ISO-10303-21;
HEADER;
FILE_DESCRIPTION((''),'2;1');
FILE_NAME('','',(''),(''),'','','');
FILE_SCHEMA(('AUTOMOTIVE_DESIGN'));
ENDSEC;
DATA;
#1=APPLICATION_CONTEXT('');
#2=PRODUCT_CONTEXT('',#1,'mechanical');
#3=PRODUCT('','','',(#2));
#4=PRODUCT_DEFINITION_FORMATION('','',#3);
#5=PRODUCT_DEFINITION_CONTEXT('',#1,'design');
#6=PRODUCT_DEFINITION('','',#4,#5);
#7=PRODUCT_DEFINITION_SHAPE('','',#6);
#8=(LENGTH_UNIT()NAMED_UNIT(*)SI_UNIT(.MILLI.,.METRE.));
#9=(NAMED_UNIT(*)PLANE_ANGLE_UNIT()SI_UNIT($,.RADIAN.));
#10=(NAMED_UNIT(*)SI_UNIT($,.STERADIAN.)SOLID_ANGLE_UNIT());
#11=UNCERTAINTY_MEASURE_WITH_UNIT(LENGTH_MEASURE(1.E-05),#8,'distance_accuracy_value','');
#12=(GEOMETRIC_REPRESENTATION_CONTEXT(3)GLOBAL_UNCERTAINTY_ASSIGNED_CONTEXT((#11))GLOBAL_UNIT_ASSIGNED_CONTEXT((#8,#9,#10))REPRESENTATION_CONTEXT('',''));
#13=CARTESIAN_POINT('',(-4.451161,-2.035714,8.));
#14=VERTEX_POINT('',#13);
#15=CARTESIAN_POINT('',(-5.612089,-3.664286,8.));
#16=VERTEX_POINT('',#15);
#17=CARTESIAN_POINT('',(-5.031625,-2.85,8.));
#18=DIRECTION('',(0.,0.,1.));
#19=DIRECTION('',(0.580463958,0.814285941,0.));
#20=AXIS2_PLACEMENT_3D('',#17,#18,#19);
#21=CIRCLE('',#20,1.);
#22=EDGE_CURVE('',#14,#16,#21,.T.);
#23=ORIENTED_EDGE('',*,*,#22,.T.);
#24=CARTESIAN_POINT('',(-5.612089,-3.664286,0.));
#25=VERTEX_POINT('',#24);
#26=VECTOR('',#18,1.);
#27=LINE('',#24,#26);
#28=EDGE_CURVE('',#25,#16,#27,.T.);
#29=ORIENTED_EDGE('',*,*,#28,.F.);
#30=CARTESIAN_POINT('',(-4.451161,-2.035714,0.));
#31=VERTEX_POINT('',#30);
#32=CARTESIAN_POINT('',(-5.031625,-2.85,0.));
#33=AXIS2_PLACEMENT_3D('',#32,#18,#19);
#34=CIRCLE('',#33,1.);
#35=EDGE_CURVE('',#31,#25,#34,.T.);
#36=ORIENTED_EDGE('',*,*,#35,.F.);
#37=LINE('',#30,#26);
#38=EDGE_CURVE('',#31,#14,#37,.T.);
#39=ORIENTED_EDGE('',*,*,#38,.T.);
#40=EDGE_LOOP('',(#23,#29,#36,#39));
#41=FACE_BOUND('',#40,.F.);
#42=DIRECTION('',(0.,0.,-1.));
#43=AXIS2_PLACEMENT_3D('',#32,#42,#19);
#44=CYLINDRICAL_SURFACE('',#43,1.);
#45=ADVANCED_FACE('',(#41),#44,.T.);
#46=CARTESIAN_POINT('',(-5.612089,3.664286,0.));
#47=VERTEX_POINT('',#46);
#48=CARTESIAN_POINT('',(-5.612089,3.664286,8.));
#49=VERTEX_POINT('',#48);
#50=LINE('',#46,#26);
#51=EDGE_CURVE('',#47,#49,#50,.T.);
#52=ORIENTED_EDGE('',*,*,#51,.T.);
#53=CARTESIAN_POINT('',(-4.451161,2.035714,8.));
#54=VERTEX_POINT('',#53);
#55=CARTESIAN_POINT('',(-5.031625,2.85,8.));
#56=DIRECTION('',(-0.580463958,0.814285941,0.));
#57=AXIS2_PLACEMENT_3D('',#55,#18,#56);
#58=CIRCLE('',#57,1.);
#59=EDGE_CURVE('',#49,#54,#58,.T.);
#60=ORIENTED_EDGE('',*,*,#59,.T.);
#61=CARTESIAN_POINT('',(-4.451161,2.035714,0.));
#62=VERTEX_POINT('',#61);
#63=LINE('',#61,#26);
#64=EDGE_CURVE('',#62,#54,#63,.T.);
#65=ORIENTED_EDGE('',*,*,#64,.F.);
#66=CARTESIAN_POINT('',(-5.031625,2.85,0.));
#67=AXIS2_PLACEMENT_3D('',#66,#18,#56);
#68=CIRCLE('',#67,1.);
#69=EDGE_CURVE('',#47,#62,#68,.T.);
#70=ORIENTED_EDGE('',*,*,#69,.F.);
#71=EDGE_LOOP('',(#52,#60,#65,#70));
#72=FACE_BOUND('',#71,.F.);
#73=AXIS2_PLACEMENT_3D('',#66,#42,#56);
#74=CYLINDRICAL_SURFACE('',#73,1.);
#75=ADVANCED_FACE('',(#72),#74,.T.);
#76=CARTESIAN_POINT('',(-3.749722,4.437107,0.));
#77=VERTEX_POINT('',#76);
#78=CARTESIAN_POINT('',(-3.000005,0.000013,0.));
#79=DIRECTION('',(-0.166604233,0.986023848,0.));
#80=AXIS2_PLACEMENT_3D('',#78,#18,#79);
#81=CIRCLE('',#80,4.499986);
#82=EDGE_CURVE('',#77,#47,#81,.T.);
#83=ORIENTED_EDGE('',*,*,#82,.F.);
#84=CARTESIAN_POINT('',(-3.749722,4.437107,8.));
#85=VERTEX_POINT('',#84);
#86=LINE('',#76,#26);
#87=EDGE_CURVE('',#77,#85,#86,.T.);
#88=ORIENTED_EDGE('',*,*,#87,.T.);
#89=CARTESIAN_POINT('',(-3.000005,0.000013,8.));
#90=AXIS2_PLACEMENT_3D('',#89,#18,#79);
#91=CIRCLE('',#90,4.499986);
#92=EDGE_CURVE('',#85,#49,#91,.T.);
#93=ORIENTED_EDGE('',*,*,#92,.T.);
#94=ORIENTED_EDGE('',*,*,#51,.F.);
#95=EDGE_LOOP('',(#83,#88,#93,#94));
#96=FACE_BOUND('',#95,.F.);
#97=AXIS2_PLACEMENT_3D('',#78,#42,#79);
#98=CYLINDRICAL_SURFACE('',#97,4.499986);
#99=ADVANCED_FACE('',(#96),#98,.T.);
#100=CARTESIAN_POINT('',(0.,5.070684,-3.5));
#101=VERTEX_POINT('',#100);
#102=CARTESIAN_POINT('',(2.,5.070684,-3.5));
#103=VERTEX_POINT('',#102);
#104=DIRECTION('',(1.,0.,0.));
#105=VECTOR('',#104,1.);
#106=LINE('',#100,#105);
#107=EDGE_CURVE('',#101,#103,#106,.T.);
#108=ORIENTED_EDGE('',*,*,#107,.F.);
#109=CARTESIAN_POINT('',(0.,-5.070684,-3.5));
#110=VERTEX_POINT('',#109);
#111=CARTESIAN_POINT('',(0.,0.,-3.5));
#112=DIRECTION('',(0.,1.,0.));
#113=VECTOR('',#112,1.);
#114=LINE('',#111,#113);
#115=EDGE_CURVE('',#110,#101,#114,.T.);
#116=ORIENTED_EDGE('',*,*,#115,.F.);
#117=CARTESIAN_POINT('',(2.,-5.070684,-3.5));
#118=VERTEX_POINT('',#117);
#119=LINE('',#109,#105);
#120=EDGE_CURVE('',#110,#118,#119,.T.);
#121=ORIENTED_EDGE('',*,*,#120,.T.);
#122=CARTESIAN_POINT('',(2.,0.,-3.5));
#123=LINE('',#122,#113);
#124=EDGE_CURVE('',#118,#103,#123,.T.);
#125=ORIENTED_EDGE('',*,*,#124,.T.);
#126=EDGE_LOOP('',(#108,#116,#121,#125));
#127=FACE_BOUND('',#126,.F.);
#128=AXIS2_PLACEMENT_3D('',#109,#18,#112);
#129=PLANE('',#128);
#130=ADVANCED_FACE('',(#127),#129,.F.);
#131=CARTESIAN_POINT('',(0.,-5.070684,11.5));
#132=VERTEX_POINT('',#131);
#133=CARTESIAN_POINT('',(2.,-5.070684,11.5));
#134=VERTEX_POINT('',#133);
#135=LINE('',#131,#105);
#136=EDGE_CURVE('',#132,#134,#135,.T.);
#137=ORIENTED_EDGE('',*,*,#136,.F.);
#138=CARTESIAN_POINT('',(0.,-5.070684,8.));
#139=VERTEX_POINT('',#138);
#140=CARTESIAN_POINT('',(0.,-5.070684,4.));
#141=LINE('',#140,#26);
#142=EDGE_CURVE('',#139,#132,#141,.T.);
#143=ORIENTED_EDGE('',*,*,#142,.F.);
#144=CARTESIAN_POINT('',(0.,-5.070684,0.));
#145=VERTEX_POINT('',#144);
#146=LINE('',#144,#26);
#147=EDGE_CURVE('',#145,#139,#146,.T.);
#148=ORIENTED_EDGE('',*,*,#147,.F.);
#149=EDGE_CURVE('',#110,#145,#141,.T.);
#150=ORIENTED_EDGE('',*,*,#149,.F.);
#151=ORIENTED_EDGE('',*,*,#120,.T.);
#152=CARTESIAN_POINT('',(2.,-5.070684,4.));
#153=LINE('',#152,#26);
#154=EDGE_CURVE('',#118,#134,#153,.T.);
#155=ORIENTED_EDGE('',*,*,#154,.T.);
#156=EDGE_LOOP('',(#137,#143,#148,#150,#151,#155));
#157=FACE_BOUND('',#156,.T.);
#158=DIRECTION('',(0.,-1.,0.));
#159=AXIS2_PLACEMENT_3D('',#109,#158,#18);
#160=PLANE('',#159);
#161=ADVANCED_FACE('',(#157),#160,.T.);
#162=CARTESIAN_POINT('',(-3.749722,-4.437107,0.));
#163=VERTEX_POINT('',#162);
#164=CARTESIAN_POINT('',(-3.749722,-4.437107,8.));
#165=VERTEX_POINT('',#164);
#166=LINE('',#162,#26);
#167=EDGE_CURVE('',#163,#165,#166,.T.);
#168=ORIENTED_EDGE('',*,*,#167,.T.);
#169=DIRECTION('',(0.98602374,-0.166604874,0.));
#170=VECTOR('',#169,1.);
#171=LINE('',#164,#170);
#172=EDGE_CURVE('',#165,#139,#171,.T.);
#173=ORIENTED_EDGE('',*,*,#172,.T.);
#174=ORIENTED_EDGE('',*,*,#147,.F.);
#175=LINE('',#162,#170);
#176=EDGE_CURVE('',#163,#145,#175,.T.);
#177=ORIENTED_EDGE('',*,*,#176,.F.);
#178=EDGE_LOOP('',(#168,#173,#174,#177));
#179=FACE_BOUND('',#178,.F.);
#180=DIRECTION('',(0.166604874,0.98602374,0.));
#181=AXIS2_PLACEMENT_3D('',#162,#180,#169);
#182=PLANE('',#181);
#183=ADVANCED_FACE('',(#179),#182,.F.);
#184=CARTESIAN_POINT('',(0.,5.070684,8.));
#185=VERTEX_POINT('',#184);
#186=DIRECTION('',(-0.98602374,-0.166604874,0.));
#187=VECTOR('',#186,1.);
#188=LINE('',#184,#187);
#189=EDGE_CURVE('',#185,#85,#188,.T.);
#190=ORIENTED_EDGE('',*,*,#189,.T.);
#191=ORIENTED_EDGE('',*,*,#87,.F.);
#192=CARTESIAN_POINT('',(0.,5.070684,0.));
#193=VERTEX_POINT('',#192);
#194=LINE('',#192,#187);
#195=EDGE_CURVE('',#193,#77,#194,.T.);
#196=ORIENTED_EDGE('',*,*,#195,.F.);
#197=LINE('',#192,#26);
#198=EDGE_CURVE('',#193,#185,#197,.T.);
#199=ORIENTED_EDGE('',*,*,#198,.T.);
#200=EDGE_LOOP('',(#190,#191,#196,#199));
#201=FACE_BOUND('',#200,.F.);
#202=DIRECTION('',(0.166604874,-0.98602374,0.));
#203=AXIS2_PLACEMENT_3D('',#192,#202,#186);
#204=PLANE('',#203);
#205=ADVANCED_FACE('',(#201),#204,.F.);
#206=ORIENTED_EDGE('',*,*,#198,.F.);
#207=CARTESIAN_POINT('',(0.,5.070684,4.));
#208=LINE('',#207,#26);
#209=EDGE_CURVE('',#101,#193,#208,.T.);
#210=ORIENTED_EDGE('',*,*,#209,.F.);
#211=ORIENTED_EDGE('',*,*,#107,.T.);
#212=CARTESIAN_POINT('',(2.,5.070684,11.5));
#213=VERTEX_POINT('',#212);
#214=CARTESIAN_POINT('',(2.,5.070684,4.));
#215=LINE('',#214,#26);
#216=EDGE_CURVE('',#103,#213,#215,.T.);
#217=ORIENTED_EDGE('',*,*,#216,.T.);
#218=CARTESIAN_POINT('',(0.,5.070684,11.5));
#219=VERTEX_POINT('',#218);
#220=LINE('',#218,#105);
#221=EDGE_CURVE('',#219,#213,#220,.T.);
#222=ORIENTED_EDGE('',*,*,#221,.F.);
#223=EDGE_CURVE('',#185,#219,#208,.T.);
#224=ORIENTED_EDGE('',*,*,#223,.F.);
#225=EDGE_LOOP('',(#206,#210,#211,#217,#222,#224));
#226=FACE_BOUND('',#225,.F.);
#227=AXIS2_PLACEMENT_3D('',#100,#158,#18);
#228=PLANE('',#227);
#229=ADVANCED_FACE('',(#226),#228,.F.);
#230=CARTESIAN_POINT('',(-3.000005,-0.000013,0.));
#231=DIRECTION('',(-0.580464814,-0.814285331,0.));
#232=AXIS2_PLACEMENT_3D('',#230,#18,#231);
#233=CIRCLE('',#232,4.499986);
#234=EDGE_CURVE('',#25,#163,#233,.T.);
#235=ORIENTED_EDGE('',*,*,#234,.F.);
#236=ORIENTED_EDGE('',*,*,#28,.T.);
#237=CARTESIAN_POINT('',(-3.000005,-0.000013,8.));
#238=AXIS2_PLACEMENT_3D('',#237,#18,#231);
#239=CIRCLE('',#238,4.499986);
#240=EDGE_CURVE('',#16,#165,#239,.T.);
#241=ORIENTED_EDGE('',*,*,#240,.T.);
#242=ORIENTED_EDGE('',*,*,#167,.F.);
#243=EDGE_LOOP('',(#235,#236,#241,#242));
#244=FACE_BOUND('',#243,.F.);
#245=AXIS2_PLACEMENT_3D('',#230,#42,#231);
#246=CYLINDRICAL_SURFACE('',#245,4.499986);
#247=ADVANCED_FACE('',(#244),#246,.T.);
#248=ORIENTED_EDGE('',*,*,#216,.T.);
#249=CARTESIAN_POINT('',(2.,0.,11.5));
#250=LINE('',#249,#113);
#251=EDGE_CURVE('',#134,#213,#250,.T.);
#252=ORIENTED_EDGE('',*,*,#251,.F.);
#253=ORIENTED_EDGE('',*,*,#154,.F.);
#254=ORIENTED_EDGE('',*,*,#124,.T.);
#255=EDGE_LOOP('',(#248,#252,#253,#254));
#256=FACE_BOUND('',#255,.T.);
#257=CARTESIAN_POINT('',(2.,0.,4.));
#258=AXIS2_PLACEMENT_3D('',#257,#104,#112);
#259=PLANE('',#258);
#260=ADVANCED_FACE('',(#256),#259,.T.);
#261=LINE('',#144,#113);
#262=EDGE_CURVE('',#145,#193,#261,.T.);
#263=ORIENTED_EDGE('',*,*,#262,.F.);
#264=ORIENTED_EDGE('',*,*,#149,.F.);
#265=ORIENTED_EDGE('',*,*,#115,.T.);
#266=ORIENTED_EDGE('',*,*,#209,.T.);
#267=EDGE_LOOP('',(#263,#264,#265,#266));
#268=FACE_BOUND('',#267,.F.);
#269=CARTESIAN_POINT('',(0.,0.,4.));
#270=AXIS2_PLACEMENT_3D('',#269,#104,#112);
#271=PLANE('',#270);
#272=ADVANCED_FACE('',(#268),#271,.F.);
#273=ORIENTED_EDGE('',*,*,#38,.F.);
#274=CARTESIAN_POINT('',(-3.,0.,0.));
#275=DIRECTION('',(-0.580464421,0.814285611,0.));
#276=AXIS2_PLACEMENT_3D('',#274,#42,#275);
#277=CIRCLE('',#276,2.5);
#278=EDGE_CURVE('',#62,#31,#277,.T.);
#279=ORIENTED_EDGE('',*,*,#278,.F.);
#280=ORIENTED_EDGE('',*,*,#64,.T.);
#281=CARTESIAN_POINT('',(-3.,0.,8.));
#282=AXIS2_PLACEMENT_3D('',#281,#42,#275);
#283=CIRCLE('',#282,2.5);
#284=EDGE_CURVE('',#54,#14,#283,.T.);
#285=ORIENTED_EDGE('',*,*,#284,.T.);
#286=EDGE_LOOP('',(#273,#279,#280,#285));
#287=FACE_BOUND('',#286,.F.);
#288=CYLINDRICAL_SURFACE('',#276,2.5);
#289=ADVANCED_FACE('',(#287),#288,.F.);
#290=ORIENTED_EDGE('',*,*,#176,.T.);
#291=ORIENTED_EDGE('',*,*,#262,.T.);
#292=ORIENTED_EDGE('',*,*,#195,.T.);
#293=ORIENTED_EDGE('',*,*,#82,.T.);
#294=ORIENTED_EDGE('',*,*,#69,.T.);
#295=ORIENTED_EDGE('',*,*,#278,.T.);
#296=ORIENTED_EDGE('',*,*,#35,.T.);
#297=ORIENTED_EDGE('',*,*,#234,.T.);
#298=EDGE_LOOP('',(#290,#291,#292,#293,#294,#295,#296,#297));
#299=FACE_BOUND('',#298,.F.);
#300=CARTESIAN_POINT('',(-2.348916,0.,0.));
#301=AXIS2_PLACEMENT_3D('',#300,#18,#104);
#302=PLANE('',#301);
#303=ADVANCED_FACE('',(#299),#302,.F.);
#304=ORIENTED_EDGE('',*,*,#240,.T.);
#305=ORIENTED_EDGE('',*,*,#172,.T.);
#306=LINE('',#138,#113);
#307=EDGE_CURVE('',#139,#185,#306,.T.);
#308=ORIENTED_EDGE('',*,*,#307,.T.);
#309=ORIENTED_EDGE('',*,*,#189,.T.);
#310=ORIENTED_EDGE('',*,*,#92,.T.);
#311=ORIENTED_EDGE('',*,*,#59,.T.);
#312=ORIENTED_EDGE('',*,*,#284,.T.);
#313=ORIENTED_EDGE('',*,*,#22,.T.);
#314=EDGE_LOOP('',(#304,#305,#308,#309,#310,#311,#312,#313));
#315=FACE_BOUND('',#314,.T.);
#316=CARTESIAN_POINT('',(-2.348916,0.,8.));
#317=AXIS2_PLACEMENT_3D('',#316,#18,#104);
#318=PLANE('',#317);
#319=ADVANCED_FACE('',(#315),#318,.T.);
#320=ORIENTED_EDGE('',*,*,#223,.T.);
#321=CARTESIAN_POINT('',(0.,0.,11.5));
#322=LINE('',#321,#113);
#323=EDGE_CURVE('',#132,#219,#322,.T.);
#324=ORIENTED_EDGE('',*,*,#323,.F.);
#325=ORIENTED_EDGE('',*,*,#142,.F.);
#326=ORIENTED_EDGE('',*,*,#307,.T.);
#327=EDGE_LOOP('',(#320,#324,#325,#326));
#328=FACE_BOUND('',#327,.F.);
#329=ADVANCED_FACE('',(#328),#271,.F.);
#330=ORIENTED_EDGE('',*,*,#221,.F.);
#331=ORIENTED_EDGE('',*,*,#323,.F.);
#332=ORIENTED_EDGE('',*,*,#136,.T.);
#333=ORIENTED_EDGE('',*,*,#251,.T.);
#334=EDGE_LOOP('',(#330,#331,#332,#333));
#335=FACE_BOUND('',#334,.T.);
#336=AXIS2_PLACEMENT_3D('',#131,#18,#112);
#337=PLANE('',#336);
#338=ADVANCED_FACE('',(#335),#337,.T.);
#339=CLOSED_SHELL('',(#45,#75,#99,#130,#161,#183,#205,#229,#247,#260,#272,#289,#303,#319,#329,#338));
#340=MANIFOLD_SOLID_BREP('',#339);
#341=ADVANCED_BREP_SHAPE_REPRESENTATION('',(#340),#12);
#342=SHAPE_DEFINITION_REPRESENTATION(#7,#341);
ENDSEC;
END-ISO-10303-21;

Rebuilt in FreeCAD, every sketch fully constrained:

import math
import FreeCAD as App
import Part
import Sketcher
from FreeCAD import Vector

doc = App.newDocument("Part")
params = doc.addObject("Spreadsheet::Sheet", "Params")
for row, (alias, value) in enumerate([
    ("sketch1_radius", "1 mm"),
    ("sketch1_radius2", "2.5 mm"),
    ("pad1_length", "8 mm"),
    ("sketch2_height", "15 mm"),
    ("pad2_length", "2 mm"),
], start=1):
    params.set(f"A{row}", alias)
    params.set(f"B{row}", "=" + value)
    params.setAlias(f"B{row}", alias)

body = doc.addObject("PartDesign::Body", "Body")

sketch1 = body.newObject("Sketcher::SketchObject", "Sketch")
sketch1.AttachmentSupport = (doc.getObject("XY_Plane"), [""])
sketch1.MapMode = "FlatFace"
sketch1.addGeometry([
    Part.ArcOfCircle(Part.Circle(Vector(-3, 0, 0), Vector(0, 0, 1), 2.5), math.radians(-125.483214), math.radians(125.483214)),
    Part.ArcOfCircle(Part.Circle(Vector(-5.031625, -2.85, 0), Vector(0, 0, 1), 1), math.radians(54.516818), math.radians(234.516818)),
    Part.ArcOfCircle(Part.Circle(Vector(-3.000005, -0.000013, 0), Vector(0, 0, 1), 4.499986), math.radians(-125.483242), math.radians(-99.59044)),
    Part.LineSegment(Vector(-3.749722, -4.437107, 0), Vector(0, -5.070684, 0)),
    Part.LineSegment(Vector(0, -5.070684, 0), Vector(0, 5.070684, 0)),
    Part.LineSegment(Vector(0, 5.070684, 0), Vector(-3.749722, 4.437107, 0)),
    Part.ArcOfCircle(Part.Circle(Vector(-3.000005, 0.000013, 0), Vector(0, 0, 1), 4.499986), math.radians(99.59044), math.radians(125.483242)),
    Part.ArcOfCircle(Part.Circle(Vector(-5.031625, 2.85, 0), Vector(0, 0, 1), 1), math.radians(125.483182), math.radians(305.483182)),
], False)
sketch1.addConstraint([
    Sketcher.Constraint("Tangent", 0, 1, 1, 1),
    Sketcher.Constraint("Tangent", 1, 2, 2, 1),
    Sketcher.Constraint("Tangent", 2, 2, 3, 1),
    Sketcher.Constraint("Coincident", 3, 2, 4, 1),
    Sketcher.Constraint("Coincident", 4, 2, 5, 1),
    Sketcher.Constraint("Tangent", 5, 2, 6, 1),
    Sketcher.Constraint("Tangent", 6, 2, 7, 1),
    Sketcher.Constraint("Tangent", 7, 2, 0, 2),
    Sketcher.Constraint("Vertical", 4),
    Sketcher.Constraint("Equal", 2, 6),
    Sketcher.Constraint("Equal", 1, 7),
    Sketcher.Constraint("Symmetric", 3, 2, 4, 2, -1, 1),
    Sketcher.Constraint("Symmetric", 2, 3, 6, 3, -1),
    Sketcher.Constraint("Vertical", 1, 3, 7, 3),
    Sketcher.Constraint("Radius", 1, 1.0),
    Sketcher.Constraint("Radius", 0, 2.5),
    Sketcher.Constraint("DistanceX", 0, 3, -1, 1, 3.0),
    Sketcher.Constraint("DistanceY", 1, 3, 7, 3, 5.7),
    Sketcher.Constraint("Radius", 2, 4.499986),
    Sketcher.Constraint("DistanceY", 0, 1, 2, 3, 2.035701),
    Sketcher.Constraint("DistanceY", 0, 1, 4, 2, 7.106398),
])
sketch1.setExpression("Constraints[14]", "Params.sketch1_radius")
sketch1.setExpression("Constraints[15]", "Params.sketch1_radius2")
pad1 = body.newObject("PartDesign::Pad", "Pad")
pad1.Profile = sketch1
pad1.setExpression("Length", "Params.pad1_length")

sketch2 = body.newObject("Sketcher::SketchObject", "Sketch001")
sketch2.AttachmentSupport = (doc.getObject("YZ_Plane"), [""])
sketch2.MapMode = "FlatFace"
sketch2.addGeometry([
    Part.LineSegment(Vector(-5.070684, 11.5, 0), Vector(-5.070684, -3.5, 0)),
    Part.LineSegment(Vector(-5.070684, -3.5, 0), Vector(5.070684, -3.5, 0)),
    Part.LineSegment(Vector(5.070684, -3.5, 0), Vector(5.070684, 11.5, 0)),
    Part.LineSegment(Vector(5.070684, 11.5, 0), Vector(-5.070684, 11.5, 0)),
], False)
sketch2.addConstraint([
    Sketcher.Constraint("Coincident", 0, 2, 1, 1),
    Sketcher.Constraint("Coincident", 1, 2, 2, 1),
    Sketcher.Constraint("Coincident", 2, 2, 3, 1),
    Sketcher.Constraint("Coincident", 3, 2, 0, 1),
    Sketcher.Constraint("Vertical", 0),
    Sketcher.Constraint("Horizontal", 1),
    Sketcher.Constraint("Vertical", 2),
    Sketcher.Constraint("Horizontal", 3),
    Sketcher.Constraint("DistanceY", 0, 2, 0, 1, 15.0),
    Sketcher.Constraint("DistanceY", 0, 2, -1, 1, 3.5),
    Sketcher.Constraint("DistanceX", 1, 1, 1, 2, 10.141368),
    Sketcher.Constraint("DistanceX", 0, 2, -1, 1, 5.070684),
])
sketch2.setExpression("Constraints[8]", "Params.sketch2_height")
pad2 = body.newObject("PartDesign::Pad", "Pad001")
pad2.Profile = sketch2
pad2.setExpression("Length", "Params.pad2_length")

doc.recompute()
